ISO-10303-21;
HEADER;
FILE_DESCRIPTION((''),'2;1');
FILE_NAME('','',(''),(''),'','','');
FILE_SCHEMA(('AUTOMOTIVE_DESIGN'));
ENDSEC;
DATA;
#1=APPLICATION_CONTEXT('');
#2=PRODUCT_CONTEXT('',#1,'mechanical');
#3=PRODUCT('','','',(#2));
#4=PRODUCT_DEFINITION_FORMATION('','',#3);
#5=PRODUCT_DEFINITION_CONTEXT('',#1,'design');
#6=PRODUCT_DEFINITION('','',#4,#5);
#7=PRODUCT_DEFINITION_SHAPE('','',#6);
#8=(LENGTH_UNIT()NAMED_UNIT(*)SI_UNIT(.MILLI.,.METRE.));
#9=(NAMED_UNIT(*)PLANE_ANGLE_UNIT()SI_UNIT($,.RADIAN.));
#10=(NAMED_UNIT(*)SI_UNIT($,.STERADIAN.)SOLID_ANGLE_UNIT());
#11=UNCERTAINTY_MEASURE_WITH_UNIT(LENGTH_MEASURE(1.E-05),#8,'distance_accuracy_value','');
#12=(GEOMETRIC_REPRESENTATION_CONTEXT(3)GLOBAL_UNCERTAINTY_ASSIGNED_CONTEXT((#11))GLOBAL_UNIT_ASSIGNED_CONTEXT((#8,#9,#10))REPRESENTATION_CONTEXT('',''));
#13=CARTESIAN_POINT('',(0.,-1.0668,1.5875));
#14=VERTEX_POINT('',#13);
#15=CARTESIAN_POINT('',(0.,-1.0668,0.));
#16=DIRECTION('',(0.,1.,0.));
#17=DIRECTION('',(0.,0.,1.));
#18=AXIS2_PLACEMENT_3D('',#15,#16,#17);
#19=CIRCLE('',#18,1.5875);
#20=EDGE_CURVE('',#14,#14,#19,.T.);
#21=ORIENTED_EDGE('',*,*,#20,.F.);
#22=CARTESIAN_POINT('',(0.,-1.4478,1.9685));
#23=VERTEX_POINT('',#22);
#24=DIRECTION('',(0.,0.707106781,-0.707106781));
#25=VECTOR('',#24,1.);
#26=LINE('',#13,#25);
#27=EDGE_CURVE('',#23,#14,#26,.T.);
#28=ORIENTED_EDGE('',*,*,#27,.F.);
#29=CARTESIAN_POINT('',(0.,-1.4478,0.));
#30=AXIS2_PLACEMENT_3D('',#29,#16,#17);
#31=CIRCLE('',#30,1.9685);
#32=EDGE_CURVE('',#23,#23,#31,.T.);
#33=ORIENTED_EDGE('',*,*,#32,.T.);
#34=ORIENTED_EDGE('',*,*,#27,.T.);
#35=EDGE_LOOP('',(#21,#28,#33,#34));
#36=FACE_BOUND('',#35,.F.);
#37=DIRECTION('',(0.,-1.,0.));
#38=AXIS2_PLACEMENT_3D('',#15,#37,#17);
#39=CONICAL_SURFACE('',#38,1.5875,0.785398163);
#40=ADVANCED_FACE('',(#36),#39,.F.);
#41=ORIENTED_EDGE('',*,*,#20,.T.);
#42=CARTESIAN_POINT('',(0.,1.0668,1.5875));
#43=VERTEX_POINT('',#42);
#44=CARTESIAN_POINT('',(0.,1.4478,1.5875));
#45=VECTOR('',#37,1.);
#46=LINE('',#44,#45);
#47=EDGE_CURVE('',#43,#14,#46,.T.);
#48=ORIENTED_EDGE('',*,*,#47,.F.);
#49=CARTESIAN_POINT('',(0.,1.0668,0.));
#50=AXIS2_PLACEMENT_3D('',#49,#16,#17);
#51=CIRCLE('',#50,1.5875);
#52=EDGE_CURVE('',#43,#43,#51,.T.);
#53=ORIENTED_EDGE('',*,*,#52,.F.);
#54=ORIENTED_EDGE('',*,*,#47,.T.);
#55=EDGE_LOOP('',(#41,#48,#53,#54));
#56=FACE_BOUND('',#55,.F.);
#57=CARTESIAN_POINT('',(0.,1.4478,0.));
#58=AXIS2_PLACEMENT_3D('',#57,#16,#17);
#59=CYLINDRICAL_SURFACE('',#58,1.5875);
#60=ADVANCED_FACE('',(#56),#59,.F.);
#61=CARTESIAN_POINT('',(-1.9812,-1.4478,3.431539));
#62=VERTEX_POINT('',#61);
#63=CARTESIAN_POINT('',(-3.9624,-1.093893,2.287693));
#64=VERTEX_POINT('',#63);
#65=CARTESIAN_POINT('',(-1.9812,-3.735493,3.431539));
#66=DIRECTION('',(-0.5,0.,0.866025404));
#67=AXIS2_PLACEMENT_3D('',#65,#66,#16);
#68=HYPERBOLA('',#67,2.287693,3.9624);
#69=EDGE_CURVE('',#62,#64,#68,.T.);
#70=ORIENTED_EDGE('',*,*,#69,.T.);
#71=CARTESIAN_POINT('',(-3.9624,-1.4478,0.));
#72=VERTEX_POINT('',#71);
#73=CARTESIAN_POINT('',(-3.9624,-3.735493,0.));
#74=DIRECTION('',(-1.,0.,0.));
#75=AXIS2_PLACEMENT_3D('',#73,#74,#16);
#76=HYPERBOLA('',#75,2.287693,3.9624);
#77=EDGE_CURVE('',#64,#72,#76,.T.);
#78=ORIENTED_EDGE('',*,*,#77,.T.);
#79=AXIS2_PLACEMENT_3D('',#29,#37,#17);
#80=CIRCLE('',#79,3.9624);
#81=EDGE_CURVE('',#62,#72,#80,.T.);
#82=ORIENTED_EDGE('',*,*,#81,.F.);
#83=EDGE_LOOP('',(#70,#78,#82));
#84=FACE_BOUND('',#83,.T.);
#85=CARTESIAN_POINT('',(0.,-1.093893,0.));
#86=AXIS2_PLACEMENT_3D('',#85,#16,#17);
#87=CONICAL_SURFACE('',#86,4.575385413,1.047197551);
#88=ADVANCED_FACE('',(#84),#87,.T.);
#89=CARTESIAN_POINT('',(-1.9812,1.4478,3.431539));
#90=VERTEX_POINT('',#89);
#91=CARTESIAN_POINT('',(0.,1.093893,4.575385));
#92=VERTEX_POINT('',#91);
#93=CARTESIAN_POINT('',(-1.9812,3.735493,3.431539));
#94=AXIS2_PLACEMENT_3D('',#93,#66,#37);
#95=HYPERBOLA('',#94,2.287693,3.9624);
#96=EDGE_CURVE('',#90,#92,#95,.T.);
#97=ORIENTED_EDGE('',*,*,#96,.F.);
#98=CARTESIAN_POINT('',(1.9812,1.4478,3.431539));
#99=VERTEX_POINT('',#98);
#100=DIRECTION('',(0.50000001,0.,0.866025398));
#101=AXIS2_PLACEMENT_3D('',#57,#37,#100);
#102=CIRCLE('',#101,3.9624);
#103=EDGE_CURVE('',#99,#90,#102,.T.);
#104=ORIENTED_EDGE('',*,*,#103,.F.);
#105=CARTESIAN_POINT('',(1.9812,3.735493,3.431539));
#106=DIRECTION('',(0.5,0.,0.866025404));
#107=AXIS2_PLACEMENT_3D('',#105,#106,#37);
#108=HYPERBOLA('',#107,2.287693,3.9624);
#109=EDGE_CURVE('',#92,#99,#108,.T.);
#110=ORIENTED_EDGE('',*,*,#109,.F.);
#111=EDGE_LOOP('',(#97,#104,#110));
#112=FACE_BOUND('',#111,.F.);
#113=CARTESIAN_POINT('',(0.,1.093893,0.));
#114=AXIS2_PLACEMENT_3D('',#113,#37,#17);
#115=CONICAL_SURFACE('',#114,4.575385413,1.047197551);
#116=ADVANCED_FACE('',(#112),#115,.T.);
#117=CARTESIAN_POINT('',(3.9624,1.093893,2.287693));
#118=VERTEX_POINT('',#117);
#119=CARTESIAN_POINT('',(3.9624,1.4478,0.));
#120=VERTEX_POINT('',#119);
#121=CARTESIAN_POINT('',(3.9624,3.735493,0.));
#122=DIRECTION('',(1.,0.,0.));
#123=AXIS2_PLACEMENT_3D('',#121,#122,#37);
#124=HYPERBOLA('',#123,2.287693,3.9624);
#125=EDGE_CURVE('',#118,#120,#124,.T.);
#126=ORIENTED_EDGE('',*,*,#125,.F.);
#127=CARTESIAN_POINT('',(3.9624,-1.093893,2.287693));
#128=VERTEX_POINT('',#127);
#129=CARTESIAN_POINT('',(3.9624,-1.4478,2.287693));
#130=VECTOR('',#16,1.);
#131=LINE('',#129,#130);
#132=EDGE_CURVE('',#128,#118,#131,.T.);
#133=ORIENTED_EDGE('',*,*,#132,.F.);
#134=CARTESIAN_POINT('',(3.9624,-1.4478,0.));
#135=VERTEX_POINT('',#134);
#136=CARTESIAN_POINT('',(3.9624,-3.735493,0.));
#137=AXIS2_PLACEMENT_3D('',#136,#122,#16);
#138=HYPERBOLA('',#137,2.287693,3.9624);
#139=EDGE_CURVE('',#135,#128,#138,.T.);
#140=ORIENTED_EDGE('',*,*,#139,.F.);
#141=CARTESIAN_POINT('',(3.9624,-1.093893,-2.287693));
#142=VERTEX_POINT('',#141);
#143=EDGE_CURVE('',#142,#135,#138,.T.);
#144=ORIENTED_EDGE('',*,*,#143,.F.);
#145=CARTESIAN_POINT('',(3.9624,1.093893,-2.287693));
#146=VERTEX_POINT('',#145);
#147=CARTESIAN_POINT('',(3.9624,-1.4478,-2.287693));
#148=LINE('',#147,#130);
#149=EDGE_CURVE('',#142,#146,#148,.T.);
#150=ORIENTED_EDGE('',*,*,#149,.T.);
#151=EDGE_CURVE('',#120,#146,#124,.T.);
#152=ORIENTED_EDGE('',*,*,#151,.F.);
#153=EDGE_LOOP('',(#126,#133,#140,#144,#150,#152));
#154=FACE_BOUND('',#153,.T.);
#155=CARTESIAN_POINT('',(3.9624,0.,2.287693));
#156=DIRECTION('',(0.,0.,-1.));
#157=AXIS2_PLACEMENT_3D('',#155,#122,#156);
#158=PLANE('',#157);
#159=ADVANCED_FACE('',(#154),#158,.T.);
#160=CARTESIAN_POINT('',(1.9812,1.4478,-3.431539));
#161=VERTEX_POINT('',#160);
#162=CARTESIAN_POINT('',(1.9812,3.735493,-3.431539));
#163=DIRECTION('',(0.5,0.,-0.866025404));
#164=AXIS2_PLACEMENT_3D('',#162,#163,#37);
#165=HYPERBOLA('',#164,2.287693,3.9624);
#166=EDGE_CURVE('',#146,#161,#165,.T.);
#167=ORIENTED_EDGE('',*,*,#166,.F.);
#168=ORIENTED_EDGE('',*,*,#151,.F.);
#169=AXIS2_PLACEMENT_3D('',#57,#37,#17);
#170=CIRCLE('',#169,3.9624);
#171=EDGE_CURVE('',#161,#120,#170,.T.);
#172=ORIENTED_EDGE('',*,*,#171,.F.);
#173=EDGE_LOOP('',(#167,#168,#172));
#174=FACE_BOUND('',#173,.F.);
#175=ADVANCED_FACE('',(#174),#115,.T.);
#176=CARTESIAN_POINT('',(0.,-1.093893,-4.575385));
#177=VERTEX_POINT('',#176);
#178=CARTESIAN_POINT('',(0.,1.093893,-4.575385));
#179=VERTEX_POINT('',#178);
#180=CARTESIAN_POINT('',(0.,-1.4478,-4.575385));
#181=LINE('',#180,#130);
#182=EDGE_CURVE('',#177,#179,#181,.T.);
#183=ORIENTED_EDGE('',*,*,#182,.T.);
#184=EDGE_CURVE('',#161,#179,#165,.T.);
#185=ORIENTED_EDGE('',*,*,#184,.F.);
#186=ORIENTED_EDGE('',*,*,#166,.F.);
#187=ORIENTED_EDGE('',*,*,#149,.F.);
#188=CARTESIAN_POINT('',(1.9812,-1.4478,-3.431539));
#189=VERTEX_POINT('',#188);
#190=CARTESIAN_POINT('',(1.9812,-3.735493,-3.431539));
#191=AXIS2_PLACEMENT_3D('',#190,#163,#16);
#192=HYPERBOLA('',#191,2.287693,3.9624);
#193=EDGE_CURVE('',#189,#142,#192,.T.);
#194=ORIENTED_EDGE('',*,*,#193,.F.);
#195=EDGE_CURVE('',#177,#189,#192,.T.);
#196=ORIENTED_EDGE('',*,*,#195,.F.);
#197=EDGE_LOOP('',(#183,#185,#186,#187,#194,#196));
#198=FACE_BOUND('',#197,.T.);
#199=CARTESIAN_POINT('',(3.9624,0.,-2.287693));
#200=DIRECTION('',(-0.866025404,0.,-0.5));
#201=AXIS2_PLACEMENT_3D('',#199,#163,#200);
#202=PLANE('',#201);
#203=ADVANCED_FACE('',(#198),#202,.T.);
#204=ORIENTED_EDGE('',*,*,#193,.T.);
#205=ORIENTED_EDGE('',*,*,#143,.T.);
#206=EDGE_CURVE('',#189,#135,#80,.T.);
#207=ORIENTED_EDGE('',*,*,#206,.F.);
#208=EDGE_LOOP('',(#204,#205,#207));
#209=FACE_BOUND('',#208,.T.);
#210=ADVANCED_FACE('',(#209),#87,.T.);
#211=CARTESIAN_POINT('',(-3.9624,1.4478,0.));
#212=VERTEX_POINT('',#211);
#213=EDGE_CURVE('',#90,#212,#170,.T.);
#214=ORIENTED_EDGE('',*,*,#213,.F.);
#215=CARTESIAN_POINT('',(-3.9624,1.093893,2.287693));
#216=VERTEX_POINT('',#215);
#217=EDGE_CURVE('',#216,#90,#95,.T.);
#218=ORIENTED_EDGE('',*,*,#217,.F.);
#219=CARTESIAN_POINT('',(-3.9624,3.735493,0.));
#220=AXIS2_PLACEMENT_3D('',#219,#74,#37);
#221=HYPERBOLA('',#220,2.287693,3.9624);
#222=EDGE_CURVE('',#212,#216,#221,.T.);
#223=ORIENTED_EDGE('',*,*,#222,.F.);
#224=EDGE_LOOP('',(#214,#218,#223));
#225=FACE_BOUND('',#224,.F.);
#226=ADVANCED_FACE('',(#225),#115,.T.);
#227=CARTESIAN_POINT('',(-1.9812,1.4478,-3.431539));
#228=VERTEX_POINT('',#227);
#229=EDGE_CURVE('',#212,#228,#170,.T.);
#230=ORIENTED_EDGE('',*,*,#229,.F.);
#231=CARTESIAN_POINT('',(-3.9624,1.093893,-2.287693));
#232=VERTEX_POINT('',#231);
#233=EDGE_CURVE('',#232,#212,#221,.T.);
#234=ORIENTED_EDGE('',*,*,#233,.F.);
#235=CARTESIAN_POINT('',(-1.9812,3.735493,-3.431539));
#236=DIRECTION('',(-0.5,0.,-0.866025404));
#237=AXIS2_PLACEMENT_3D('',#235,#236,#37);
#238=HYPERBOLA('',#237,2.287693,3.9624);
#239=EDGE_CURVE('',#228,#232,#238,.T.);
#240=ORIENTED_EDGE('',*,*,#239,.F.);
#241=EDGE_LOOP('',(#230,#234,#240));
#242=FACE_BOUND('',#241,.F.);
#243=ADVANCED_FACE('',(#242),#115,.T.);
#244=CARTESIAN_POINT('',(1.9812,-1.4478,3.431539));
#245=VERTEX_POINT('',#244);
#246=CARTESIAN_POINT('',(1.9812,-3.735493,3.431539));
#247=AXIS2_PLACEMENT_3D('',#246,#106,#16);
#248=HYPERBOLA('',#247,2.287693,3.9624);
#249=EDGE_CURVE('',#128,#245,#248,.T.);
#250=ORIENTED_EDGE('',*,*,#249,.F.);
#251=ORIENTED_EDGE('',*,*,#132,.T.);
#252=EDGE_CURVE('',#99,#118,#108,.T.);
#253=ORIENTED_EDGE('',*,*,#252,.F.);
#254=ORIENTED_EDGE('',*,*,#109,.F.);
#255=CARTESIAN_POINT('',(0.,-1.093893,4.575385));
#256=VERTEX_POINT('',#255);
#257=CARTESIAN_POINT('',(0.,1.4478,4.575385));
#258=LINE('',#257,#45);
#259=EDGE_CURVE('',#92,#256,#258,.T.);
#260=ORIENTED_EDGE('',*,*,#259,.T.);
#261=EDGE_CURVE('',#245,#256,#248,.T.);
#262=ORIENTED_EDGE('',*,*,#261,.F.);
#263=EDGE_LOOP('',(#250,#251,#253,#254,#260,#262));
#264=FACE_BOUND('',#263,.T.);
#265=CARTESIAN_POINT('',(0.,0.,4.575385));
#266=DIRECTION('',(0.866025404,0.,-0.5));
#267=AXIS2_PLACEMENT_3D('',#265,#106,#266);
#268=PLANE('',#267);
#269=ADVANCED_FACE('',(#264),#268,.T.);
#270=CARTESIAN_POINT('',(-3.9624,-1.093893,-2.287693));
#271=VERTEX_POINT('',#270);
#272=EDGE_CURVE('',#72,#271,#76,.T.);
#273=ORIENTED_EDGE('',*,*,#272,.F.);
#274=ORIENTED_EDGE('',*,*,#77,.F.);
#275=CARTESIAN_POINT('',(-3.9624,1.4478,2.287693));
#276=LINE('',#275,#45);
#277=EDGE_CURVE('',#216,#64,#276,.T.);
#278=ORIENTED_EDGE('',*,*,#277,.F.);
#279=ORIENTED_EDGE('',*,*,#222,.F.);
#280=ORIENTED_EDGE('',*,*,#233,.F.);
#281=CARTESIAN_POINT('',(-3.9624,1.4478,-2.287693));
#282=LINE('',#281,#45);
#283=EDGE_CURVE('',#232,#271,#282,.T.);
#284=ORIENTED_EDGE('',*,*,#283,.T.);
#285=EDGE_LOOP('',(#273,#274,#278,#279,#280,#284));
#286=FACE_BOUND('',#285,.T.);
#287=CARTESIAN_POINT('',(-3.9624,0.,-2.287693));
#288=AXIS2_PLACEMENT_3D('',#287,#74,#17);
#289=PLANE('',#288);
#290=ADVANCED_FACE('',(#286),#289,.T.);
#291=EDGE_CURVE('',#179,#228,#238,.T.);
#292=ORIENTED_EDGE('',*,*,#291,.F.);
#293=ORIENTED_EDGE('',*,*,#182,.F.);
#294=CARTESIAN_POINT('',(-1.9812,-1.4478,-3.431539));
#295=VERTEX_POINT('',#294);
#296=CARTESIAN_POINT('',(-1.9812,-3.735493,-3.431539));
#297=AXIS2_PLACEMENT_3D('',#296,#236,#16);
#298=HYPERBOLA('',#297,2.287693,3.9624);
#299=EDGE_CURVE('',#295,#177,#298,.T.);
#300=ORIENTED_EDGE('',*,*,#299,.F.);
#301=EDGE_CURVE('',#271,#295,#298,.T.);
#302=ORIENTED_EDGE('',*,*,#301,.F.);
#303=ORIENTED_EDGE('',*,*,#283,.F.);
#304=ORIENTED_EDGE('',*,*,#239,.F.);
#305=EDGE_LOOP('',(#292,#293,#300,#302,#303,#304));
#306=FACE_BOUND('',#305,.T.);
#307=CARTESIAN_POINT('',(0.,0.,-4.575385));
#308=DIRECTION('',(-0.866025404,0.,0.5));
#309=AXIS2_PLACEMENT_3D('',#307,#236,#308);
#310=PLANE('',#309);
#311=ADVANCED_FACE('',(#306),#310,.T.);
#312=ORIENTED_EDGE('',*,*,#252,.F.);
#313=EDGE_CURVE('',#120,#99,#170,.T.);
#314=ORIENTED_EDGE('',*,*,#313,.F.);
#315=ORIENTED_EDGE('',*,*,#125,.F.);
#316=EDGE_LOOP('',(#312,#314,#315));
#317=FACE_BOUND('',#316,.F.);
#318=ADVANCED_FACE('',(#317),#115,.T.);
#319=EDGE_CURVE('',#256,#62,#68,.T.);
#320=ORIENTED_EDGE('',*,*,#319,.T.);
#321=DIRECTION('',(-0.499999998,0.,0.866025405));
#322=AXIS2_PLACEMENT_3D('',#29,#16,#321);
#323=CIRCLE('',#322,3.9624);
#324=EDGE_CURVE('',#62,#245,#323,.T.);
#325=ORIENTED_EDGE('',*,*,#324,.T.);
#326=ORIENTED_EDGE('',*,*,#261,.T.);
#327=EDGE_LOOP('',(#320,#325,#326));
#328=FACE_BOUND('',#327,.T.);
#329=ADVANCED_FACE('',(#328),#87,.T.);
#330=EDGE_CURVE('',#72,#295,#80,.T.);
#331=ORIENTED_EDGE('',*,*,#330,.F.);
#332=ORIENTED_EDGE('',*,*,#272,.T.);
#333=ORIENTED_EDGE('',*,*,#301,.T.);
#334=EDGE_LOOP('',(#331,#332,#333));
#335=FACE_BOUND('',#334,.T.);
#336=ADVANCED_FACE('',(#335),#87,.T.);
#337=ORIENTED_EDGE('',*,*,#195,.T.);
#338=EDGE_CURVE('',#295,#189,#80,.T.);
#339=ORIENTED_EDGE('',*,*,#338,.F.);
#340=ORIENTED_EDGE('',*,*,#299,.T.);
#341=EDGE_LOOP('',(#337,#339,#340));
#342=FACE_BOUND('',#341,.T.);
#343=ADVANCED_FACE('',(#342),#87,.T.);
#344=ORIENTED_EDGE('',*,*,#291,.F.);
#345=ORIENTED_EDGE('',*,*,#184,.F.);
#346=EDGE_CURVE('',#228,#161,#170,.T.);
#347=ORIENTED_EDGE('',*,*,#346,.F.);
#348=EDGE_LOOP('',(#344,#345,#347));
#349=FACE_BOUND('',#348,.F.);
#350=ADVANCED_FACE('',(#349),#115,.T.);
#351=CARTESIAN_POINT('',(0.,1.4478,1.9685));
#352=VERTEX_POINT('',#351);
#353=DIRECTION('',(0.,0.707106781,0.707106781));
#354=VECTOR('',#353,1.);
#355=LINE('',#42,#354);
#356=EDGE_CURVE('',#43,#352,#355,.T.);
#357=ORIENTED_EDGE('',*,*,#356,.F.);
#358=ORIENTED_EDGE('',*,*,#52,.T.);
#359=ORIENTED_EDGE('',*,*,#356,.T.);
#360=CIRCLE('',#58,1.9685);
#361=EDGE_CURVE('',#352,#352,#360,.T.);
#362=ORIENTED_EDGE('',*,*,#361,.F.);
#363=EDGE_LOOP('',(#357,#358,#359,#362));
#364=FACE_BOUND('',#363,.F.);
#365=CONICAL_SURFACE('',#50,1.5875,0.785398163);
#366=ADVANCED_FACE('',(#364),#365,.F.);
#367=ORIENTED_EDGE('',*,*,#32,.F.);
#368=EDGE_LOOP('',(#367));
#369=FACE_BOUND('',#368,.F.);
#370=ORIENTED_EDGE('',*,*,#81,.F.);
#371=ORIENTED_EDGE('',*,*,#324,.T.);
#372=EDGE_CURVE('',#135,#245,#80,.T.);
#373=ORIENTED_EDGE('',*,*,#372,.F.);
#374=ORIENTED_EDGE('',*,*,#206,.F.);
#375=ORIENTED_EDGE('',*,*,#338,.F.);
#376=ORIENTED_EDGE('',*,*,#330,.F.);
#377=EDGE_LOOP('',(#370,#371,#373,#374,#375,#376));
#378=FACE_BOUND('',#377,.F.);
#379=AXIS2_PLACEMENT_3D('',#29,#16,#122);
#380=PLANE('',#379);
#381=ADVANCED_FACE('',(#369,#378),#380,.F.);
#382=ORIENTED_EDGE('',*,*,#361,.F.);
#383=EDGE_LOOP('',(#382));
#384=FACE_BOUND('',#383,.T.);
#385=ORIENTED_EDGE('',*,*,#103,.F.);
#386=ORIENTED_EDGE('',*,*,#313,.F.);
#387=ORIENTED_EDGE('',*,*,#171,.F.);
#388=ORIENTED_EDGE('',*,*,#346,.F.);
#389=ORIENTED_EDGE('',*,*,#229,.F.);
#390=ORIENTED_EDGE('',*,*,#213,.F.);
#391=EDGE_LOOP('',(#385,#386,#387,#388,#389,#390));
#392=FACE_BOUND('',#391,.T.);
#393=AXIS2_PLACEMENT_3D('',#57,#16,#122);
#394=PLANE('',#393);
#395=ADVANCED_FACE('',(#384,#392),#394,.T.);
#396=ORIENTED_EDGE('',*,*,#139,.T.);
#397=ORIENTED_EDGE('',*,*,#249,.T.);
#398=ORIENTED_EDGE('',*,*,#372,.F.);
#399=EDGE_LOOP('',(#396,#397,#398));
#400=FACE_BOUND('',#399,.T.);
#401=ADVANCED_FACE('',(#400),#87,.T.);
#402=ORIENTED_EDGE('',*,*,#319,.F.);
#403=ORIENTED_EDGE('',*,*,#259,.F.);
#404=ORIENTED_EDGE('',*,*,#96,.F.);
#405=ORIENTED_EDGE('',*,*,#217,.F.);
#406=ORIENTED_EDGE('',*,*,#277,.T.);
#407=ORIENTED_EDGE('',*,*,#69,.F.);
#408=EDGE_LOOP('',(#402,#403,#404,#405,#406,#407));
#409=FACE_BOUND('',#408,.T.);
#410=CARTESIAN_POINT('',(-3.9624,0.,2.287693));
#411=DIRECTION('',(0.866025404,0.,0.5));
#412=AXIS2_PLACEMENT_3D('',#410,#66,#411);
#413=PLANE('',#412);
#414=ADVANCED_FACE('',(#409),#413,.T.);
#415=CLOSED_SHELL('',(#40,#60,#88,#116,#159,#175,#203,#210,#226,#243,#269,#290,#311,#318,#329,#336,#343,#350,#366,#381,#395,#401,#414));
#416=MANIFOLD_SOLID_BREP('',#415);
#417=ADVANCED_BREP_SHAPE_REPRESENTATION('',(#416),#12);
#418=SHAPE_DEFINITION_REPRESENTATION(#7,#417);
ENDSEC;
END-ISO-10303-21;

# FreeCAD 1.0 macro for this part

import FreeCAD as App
import Part
import Sketcher
from FreeCAD import Vector
Q = App.Units.Quantity


def edges_at(feature, points):
    """Names of the edges that pass closest to the given points."""
    edges = feature.Shape.Edges
    near = lambda p: min(range(len(edges)), key=lambda i: edges[i].distToShape(Part.Vertex(*p))[0])
    return sorted({f"Edge{near(p) + 1}" for p in points})


def add_polygon(sketch, points):
    """Adds a closed chain of lines whose ends are joined by coincident constraints."""
    first, n = sketch.GeometryCount, len(points)
    for a, b in zip(points, points[1:] + points[:1]):
        sketch.addGeometry(Part.LineSegment(App.Vector(*a, 0), App.Vector(*b, 0)), False)
    for i in range(n):
        sketch.addConstraint(Sketcher.Constraint("Coincident", first + i, 2, first + (i + 1) % n, 1))

doc = App.newDocument("Part")
params = doc.addObject("Spreadsheet::Sheet", "Params")
for row, (alias, value) in enumerate([
    ("pad1_length", "0.114 in"),
    ("sketch2_diameter", "0.125 in"),
    ("groove_angle", "360 deg"),
    ("chamfer_size", "0.015 in"),
], start=1):
    params.set(f"A{row}", alias)
    params.set(f"B{row}", "=" + value)
    params.setAlias(f"B{row}", alias)

body = doc.addObject("PartDesign::Body", "Body")

# Sketch on XZ plane
sketch1 = doc.addObject("Sketcher::SketchObject", "Sketch")
body.addObject(sketch1)
sketch1.AttachmentSupport = (doc.XZ_Plane, [""])
sketch1.MapMode = "FlatFace"
add_polygon(sketch1, [(0, 4.6), (4, 2.3), (4, -2.3), (0, -4.6), (-4, -2.3), (-4, 2.3)])  # lines 0-5
sketch1.addConstraint([
    Sketcher.Constraint("Vertical", 1),
    Sketcher.Constraint("Vertical", 4),
    Sketcher.Constraint("Symmetric", 0, 2, 3, 2, -1, 1),
    Sketcher.Constraint("Symmetric", 2, 2, 5, 2, -1, 1),
    Sketcher.Constraint("PointOnObject", 2, 2, -2),
    Sketcher.Constraint("Parallel", 2, 5),
    Sketcher.Constraint("Horizontal", 1, 2, 3, 2),
    Sketcher.Constraint("Angle", 0, Q("-30 deg")),
    Sketcher.Constraint("DistanceX", -1, 1, 0, 2, Q("0.156 in")),
    Sketcher.Constraint("DistanceY", 2, 2, 0, 2, Q("0.2701999 in")),
])
pad1 = doc.addObject("PartDesign::Pad", "Pad")
body.addObject(pad1)
pad1.Profile = sketch1
pad1.setExpression("Length", "Params.pad1_length")
pad1.Midplane = True

# Sketch on XZ plane
sketch2 = doc.addObject("Sketcher::SketchObject", "Sketch001")
body.addObject(sketch2)
sketch2.AttachmentSupport = (doc.XZ_Plane, [""])
sketch2.MapMode = "FlatFace"
sketch2.AttachmentOffset = App.Placement(Vector(0, 0, -0.057 * 25.4), App.Rotation())
sketch2.addGeometry(Part.Circle(Vector(0, 0, 0), Vector(0, 0, 1), 1.6), False)
sketch2.addConstraint([
    Sketcher.Constraint("Coincident", 0, 3, -1, 1),
    Sketcher.Constraint("Diameter", 0, Q("0.125 in")),
])
sketch2.setExpression("Constraints[1]", "Params.sketch2_diameter")
pocket1 = doc.addObject("PartDesign::Pocket", "Pocket")
body.addObject(pocket1)
pocket1.Profile = sketch2
pocket1.Type = "ThroughAll"
pocket1.Reversed = True

# Sketch on YZ plane
sketch3 = doc.addObject("Sketcher::SketchObject", "Sketch002")
body.addObject(sketch3)
sketch3.AttachmentSupport = (doc.YZ_Plane, [""])
sketch3.MapMode = "FlatFace"
add_polygon(sketch3, [(-1.09, 4.58), (-1.45, 4.58), (-1.45, 3.96)])  # lines 0-2
sketch3.addConstraint([
    Sketcher.Constraint("Horizontal", 0),
    Sketcher.Constraint("Vertical", 1),
    Sketcher.Constraint("Angle", 2, Q("60 deg")),
    Sketcher.Constraint("DistanceX", 0, 2, -1, 1, Q("0.057 in")),
    Sketcher.Constraint("DistanceY", -1, 1, 1, 2, Q("0.156 in")),
    Sketcher.Constraint("DistanceX", 0, 2, 0, 1, Q("0.353907 mm")),
])
groove = doc.addObject("PartDesign::Groove", "Groove")
body.addObject(groove)
groove.Profile = sketch3
groove.ReferenceAxis = (sketch3, ["H_Axis"])
groove.setExpression("Angle", "Params.groove_angle")
doc.recompute()

mirrored = doc.addObject("PartDesign::Mirrored", "Mirrored")
body.addObject(mirrored)
mirrored.Originals = [groove]
mirrored.MirrorPlane = (doc.XZ_Plane, [""])
body.Tip = mirrored
doc.recompute()

chamfer = doc.addObject("PartDesign::Chamfer", "Chamfer")
body.addObject(chamfer)
chamfer.Base = (mirrored, edges_at(mirrored, [(0, -1.448, -1.587), (0, 1.448, -1.587)]))
chamfer.setExpression("Size", "Params.chamfer_size")

doc.recompute()
